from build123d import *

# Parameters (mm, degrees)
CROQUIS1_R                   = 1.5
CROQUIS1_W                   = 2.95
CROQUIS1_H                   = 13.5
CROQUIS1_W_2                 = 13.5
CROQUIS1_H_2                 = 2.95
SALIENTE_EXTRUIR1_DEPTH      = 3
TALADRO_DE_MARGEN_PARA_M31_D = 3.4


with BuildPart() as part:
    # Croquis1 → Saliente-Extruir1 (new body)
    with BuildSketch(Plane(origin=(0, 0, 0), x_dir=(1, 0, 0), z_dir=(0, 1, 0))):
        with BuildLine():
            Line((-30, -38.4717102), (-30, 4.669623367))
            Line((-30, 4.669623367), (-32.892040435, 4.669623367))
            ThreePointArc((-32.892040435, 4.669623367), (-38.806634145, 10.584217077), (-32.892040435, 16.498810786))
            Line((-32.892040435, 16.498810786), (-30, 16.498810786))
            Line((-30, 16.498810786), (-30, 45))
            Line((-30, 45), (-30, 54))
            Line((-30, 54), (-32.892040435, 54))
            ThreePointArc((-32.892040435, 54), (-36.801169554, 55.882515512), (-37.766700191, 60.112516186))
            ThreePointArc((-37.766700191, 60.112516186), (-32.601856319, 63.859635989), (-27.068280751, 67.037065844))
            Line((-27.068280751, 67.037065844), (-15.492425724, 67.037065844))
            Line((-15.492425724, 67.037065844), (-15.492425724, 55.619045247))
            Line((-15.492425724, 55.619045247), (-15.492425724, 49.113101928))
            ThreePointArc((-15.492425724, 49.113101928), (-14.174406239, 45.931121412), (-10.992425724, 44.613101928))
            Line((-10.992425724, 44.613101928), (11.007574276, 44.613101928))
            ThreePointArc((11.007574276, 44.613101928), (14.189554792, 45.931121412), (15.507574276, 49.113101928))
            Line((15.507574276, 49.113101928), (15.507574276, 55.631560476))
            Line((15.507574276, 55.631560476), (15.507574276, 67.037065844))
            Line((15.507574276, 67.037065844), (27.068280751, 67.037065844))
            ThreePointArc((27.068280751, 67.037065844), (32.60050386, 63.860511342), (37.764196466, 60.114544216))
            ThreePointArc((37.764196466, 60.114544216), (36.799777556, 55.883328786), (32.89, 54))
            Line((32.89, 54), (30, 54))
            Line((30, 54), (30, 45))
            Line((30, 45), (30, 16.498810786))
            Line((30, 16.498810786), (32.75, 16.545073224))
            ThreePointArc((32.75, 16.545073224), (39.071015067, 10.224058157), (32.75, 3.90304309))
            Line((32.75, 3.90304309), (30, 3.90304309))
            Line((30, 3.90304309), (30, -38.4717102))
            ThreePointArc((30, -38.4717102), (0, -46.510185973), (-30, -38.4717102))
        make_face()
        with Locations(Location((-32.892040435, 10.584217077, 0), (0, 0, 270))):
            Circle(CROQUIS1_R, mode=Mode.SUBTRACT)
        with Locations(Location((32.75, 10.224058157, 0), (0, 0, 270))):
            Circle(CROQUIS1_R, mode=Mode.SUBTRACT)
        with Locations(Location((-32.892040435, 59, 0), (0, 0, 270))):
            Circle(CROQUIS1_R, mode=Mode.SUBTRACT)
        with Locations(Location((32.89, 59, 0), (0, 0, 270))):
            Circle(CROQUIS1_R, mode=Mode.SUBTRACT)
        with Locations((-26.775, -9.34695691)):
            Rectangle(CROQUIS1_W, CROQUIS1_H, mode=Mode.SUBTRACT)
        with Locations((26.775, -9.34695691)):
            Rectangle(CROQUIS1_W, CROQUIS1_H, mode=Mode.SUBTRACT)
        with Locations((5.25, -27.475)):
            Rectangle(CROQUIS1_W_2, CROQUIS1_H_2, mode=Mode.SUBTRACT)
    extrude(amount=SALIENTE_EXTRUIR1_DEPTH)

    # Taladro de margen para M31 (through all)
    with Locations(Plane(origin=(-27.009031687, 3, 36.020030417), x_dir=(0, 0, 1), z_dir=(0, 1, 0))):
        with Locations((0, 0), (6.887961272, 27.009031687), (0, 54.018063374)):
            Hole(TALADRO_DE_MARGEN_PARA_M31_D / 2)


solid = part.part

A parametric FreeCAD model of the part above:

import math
import FreeCAD as App
import Part
import Sketcher
from FreeCAD import Vector
Q = App.Units.Quantity

doc = App.newDocument("Part")
body = doc.addObject("PartDesign::Body", "Body")

sketch1 = body.newObject("Sketcher::SketchObject", "Sketch")
sketch1.AttachmentSupport = (doc.getObject("XZ_Plane"), [""])
sketch1.MapMode = "FlatFace"
sketch1.addGeometry([
    Part.LineSegment(Vector(-30, -4.669623, 0), Vector(-30, 38.47171, 0)),
    Part.ArcOfCircle(Part.Circle(Vector(0, -13.489814, 0), Vector(0, 0, 1), 60), math.radians(60), math.radians(120)),
    Part.LineSegment(Vector(30, 38.47171, 0), Vector(30, -3.903043, 0)),
    Part.LineSegment(Vector(30, -3.903043, 0), Vector(32.75, -3.903043, 0)),
    Part.ArcOfCircle(Part.Circle(Vector(32.75, -10.224058, 0), Vector(0, 0, 1), 6.321015), math.radians(-90), math.radians(90)),
    Part.LineSegment(Vector(32.75, -16.545073, 0), Vector(30, -16.498811, 0)),
    Part.LineSegment(Vector(30, -16.498811, 0), Vector(30, -54, 0)),
    Part.LineSegment(Vector(30, -54, 0), Vector(32.89, -54, 0)),
    Part.ArcOfCircle(Part.Circle(Vector(32.89, -59, 0), Vector(0, 0, 1), 5), math.radians(-12.879941), math.radians(90)),
    Part.ArcOfCircle(Part.Circle(Vector(0, -13.489814, 0), Vector(0, 0, 1), 60), math.radians(-63.183279), math.radians(-50.993889)),
    Part.LineSegment(Vector(27.068281, -67.037066, 0), Vector(15.507574, -67.037066, 0)),
    Part.LineSegment(Vector(15.507574, -67.037066, 0), Vector(15.507574, -49.113102, 0)),
    Part.ArcOfCircle(Part.Circle(Vector(11.007574, -49.113102, 0), Vector(0, 0, 1), 4.5), math.radians(0), math.radians(90)),
    Part.LineSegment(Vector(11.007574, -44.613102, 0), Vector(-10.992426, -44.613102, 0)),
    Part.ArcOfCircle(Part.Circle(Vector(-10.992426, -49.113102, 0), Vector(0, 0, 1), 4.5), math.radians(90), math.radians(180)),
    Part.LineSegment(Vector(-15.492426, -49.113102, 0), Vector(-15.492426, -67.037066, 0)),
    Part.LineSegment(Vector(-15.492426, -67.037066, 0), Vector(-27.068281, -67.037066, 0)),
    Part.ArcOfCircle(Part.Circle(Vector(0, -13.489814, 0), Vector(0, 0, 1), 60), math.radians(-129.009188), math.radians(-116.816721)),
    Part.ArcOfCircle(Part.Circle(Vector(-32.89204, -59, 0), Vector(0, 0, 1), 5), math.radians(90), math.radians(192.856103)),
    Part.LineSegment(Vector(-32.89204, -54, 0), Vector(-30, -54, 0)),
    Part.LineSegment(Vector(-30, -54, 0), Vector(-30, -16.498811, 0)),
    Part.LineSegment(Vector(-30, -16.498811, 0), Vector(-32.89204, -16.498811, 0)),
    Part.ArcOfCircle(Part.Circle(Vector(-32.89204, -10.584217, 0), Vector(0, 0, 1), 5.914594), math.radians(90), math.radians(270)),
    Part.LineSegment(Vector(-32.89204, -4.669623, 0), Vector(-30, -4.669623, 0)),
    Part.LineSegment(Vector(25.3, 16.096957, 0), Vector(25.3, 2.596957, 0)),
    Part.LineSegment(Vector(25.3, 2.596957, 0), Vector(28.25, 2.596957, 0)),
    Part.LineSegment(Vector(28.25, 2.596957, 0), Vector(28.25, 16.096957, 0)),
    Part.LineSegment(Vector(28.25, 16.096957, 0), Vector(25.3, 16.096957, 0)),
    Part.LineSegment(Vector(-1.5, 28.95, 0), Vector(-1.5, 26, 0)),
    Part.LineSegment(Vector(-1.5, 26, 0), Vector(12, 26, 0)),
    Part.LineSegment(Vector(12, 26, 0), Vector(12, 28.95, 0)),
    Part.LineSegment(Vector(12, 28.95, 0), Vector(-1.5, 28.95, 0)),
    Part.Circle(Vector(32.75, -10.224058, 0), Vector(0, 0, 1), 1.5),
    Part.LineSegment(Vector(-28.25, 16.096957, 0), Vector(-28.25, 2.596957, 0)),
    Part.LineSegment(Vector(-28.25, 2.596957, 0), Vector(-25.3, 2.596957, 0)),
    Part.LineSegment(Vector(-25.3, 2.596957, 0), Vector(-25.3, 16.096957, 0)),
    Part.LineSegment(Vector(-25.3, 16.096957, 0), Vector(-28.25, 16.096957, 0)),
    Part.Circle(Vector(-32.89204, -10.584217, 0), Vector(0, 0, 1), 1.5),
    Part.Circle(Vector(32.89, -59, 0), Vector(0, 0, 1), 1.5),
    Part.Circle(Vector(-32.89204, -59, 0), Vector(0, 0, 1), 1.5),
], False)
sketch1.addConstraint([
    Sketcher.Constraint("Coincident", 0, 2, 1, 2),
    Sketcher.Constraint("Coincident", 1, 1, 2, 1),
    Sketcher.Constraint("Coincident", 2, 2, 3, 1),
    Sketcher.Constraint("Tangent", 3, 2, 4, 2),
    Sketcher.Constraint("Coincident", 4, 1, 5, 1),
    Sketcher.Constraint("Coincident", 5, 2, 6, 1),
    Sketcher.Constraint("Coincident", 6, 2, 7, 1),
    Sketcher.Constraint("Tangent", 7, 2, 8, 2),
    Sketcher.Constraint("Coincident", 8, 1, 9, 2),
    Sketcher.Constraint("Coincident", 9, 1, 10, 1),
    Sketcher.Constraint("Coincident", 10, 2, 11, 1),
    Sketcher.Constraint("Tangent", 11, 2, 12, 1),
    Sketcher.Constraint("Tangent", 12, 2, 13, 1),
    Sketcher.Constraint("Tangent", 13, 2, 14, 1),
    Sketcher.Constraint("Tangent", 14, 2, 15, 1),
    Sketcher.Constraint("Coincident", 15, 2, 16, 1),
    Sketcher.Constraint("Coincident", 16, 2, 17, 2),
    Sketcher.Constraint("Coincident", 17, 1, 18, 2),
    Sketcher.Constraint("Tangent", 18, 1, 19, 1),
    Sketcher.Constraint("Coincident", 19, 2, 20, 1),
    Sketcher.Constraint("Coincident", 20, 2, 21, 1),
    Sketcher.Constraint("Tangent", 21, 2, 22, 2),
    Sketcher.Constraint("Tangent", 22, 1, 23, 1),
    Sketcher.Constraint("Coincident", 23, 2, 0, 1),
    Sketcher.Constraint("Coincident", 24, 2, 25, 1),
    Sketcher.Constraint("Coincident", 25, 2, 26, 1),
    Sketcher.Constraint("Coincident", 26, 2, 27, 1),
    Sketcher.Constraint("Coincident", 27, 2, 24, 1),
    Sketcher.Constraint("Coincident", 28, 2, 29, 1),
    Sketcher.Constraint("Coincident", 29, 2, 30, 1),
    Sketcher.Constraint("Coincident", 30, 2, 31, 1),
    Sketcher.Constraint("Coincident", 31, 2, 28, 1),
    Sketcher.Constraint("Coincident", 33, 2, 34, 1),
    Sketcher.Constraint("Coincident", 34, 2, 35, 1),
    Sketcher.Constraint("Coincident", 35, 2, 36, 1),
    Sketcher.Constraint("Coincident", 36, 2, 33, 1),
    Sketcher.Constraint("Vertical", 0),
    Sketcher.Constraint("Vertical", 2),
    Sketcher.Constraint("Horizontal", 3),
    Sketcher.Constraint("Vertical", 6),
    Sketcher.Constraint("Horizontal", 7),
    Sketcher.Constraint("Horizontal", 10),
    Sketcher.Constraint("Vertical", 11),
    Sketcher.Constraint("Horizontal", 13),
    Sketcher.Constraint("Vertical", 15),
    Sketcher.Constraint("Horizontal", 16),
    Sketcher.Constraint("Horizontal", 19),
    Sketcher.Constraint("Vertical", 20),
    Sketcher.Constraint("Horizontal", 21),
    Sketcher.Constraint("Horizontal", 23),
    Sketcher.Constraint("Vertical", 24),
    Sketcher.Constraint("Horizontal", 25),
    Sketcher.Constraint("Vertical", 26),
    Sketcher.Constraint("Horizontal", 27),
    Sketcher.Constraint("Vertical", 28),
    Sketcher.Constraint("Horizontal", 29),
    Sketcher.Constraint("Vertical", 30),
    Sketcher.Constraint("Horizontal", 31),
    Sketcher.Constraint("Vertical", 33),
    Sketcher.Constraint("Horizontal", 34),
    Sketcher.Constraint("Vertical", 35),
    Sketcher.Constraint("Horizontal", 36),
    Sketcher.Constraint("Coincident", 9, 3, 1, 3),
    Sketcher.Constraint("Coincident", 17, 3, 1, 3),
    Sketcher.Constraint("Coincident", 32, 3, 4, 3),
    Sketcher.Constraint("Coincident", 37, 3, 22, 3),
    Sketcher.Constraint("Coincident", 38, 3, 8, 3),
    Sketcher.Constraint("Coincident", 39, 3, 18, 3),
    Sketcher.Constraint("Equal", 1, 9),
    Sketcher.Constraint("Equal", 12, 14),
    Sketcher.Constraint("Equal", 9, 17),
    Sketcher.Constraint("Equal", 8, 18),
    Sketcher.Constraint("Equal", 32, 37),
    Sketcher.Constraint("Equal", 37, 38),
    Sketcher.Constraint("Equal", 38, 39),
    Sketcher.Constraint("Symmetric", 0, 2, 1, 1, -2),
    Sketcher.Constraint("Symmetric", 6, 2, 19, 2, -2),
    Sketcher.Constraint("Symmetric", 25, 2, 33, 2, -2),
    Sketcher.Constraint("Symmetric", 27, 2, 35, 2, -2),
    Sketcher.Constraint("Horizontal", 10, 2, 15, 2),
    Sketcher.Constraint("Horizontal", 5, 2, 20, 2),
    Sketcher.Constraint("Vertical", 18, 3, 22, 3),
    Sketcher.Constraint("Vertical", 3, 2, 4, 1),
    Sketcher.Constraint("Vertical", 2, 2, 5, 2),
    Sketcher.Constraint("Equal", 31, 24),
    Sketcher.Constraint("Equal", 36, 28),
    Sketcher.Constraint("Diameter", 32, Q("3 mm")),
    Sketcher.Constraint("Radius", 1, Q("60 mm")),
    Sketcher.Constraint("Radius", 8, Q("5 mm")),
    Sketcher.Constraint("Radius", 12, Q("4.5 mm")),
    Sketcher.Constraint("DistanceX", 13, 2, 13, 1, Q("22 mm")),
    Sketcher.Constraint("DistanceX", 29, 1, 29, 2, Q("13.5 mm")),
    Sketcher.Constraint("DistanceY", 8, 3, -1, 1, Q("59 mm")),
    Sketcher.Constraint("DistanceX", 0, 2, -1, 1, Q("30 mm")),
    Sketcher.Constraint("DistanceY", -1, 1, 28, 2, Q("26 mm")),
    Sketcher.Constraint("DistanceX", -1, 1, 29, 2, Q("12 mm")),
    Sketcher.Constraint("DistanceY", 2, 2, 26, 2, Q("20 mm")),
    Sketcher.Constraint("DistanceX", 3, 1, 3, 2, Q("2.75 mm")),
    Sketcher.Constraint("DistanceX", 7, 1, 7, 2, Q("2.89 mm")),
    Sketcher.Constraint("DistanceX", 25, 1, 25, 2, Q("2.95 mm")),
    Sketcher.Constraint("DistanceX", -1, 1, 24, 2, Q("25.3 mm")),
    Sketcher.Constraint("Radius", 4, Q("6.321015 mm")),
    Sketcher.Constraint("Radius", 22, Q("5.914594 mm")),
    Sketcher.Constraint("DistanceX", 19, 1, 19, 2, Q("2.89204 mm")),
    Sketcher.Constraint("DistanceY", 6, 2, 6, 1, Q("37.501189 mm")),
    Sketcher.Constraint("DistanceY", 12, 3, -1, 1, Q("49.113102 mm")),
    Sketcher.Constraint("DistanceX", 17, 1, -1, 1, Q("37.7667 mm")),
    Sketcher.Constraint("Distance", 5, Q("2.750389 mm")),
    Sketcher.Constraint("DistanceX", 10, 2, 10, 1, Q("11.560706 mm")),
    Sketcher.Constraint("DistanceX", 16, 2, 16, 1, Q("11.575855 mm")),
])
pad1 = body.newObject("PartDesign::Pad", "Pad")
pad1.Profile = sketch1
pad1.Length = 3
pad1.Reversed = True

sketch2 = body.newObject("Sketcher::SketchObject", "Sketch001")
sketch2.AttachmentSupport = (doc.getObject("XZ_Plane"), [""])
sketch2.MapMode = "FlatFace"
sketch2.AttachmentOffset = App.Placement(Vector(0, 0, -3), App.Rotation())
sketch2.addGeometry([
    Part.Circle(Vector(-27, 36, 0), Vector(0, 0, 1), 1.7),
    Part.Circle(Vector(0, 42.9, 0), Vector(0, 0, 1), 1.7),
    Part.Circle(Vector(27, 36, 0), Vector(0, 0, 1), 1.7),
], False)
sketch2.addConstraint([
    Sketcher.Constraint("Equal", 0, 1),
    Sketcher.Constraint("Equal", 1, 2),
    Sketcher.Constraint("Symmetric", 0, 3, 2, 3, -2),
    Sketcher.Constraint("PointOnObject", 1, 3, -2),
    Sketcher.Constraint("Diameter", 0, Q("3.4 mm")),
    Sketcher.Constraint("DistanceX", 0, 3, -1, 1, Q("27.009032 mm")),
    Sketcher.Constraint("DistanceY", -1, 1, 0, 3, Q("36.02003 mm")),
    Sketcher.Constraint("DistanceY", -1, 1, 1, 3, Q("42.907992 mm")),
])
doc.recompute()
hole = body.newObject("PartDesign::Hole", "Hole")
hole.Profile = sketch2
hole.ThreadType = "None"
hole.Diameter = 3.4
hole.DepthType = "ThroughAll"
hole.Reversed = True

doc.recompute()
